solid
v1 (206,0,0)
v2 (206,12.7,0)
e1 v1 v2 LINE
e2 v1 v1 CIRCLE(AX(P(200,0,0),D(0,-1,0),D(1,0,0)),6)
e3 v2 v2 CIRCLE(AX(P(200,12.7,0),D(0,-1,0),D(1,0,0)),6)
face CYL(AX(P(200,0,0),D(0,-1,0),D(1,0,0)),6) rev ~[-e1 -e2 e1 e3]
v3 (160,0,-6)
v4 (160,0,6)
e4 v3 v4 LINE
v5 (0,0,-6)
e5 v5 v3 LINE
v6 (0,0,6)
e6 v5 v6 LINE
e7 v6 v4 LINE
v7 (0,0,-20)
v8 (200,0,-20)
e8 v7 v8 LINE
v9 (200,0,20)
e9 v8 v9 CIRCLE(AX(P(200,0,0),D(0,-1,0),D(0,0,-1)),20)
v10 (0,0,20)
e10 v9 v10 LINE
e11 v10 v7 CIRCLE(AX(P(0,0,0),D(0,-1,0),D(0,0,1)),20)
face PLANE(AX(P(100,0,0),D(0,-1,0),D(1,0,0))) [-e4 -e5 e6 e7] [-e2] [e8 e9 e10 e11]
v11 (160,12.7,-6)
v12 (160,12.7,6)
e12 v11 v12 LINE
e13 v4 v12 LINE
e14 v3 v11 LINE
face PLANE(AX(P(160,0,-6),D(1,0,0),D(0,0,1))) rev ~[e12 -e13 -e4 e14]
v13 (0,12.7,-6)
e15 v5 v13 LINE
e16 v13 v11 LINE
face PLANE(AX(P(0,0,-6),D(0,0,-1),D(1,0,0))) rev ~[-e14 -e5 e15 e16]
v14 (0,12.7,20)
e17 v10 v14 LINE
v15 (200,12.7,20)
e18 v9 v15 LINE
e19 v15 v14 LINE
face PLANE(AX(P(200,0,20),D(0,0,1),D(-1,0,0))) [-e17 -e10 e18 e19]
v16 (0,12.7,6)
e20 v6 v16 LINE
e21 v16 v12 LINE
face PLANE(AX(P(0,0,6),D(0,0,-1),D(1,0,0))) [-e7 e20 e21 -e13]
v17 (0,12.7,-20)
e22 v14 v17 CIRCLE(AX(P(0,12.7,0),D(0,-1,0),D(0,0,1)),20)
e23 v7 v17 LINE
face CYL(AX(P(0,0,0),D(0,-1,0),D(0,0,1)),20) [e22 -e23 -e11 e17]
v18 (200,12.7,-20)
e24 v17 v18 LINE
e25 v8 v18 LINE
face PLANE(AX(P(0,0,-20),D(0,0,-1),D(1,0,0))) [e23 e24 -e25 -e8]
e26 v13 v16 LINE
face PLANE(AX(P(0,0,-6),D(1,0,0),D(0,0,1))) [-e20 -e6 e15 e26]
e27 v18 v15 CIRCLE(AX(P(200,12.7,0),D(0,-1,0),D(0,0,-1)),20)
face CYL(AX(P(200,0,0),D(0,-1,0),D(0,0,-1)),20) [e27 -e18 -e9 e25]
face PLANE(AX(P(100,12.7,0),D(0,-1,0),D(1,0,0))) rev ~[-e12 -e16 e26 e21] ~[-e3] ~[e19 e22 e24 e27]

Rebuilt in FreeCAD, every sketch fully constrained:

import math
import FreeCAD as App
import Part
import Sketcher

V = App.Vector
Q = App.Units.Quantity

doc = App.newDocument("Part")
body = doc.addObject("PartDesign::Body", "Body")

# Sketch on XZ plane
sketch1 = body.newObject("Sketcher::SketchObject", "Sketch")
sketch1.AttachmentSupport = (doc.getObject("XZ_Plane"), [""])
sketch1.MapMode = "FlatFace"
sketch1.addGeometry(Part.LineSegment(V(200, 20, 0), V(0, 20, 0)), False)
sketch1.addGeometry(Part.ArcOfCircle(Part.Circle(V(0, 0, 0), V(0, 0, 1), 20), math.radians(90), math.radians(270)), False)
sketch1.addGeometry(Part.LineSegment(V(0, -20, 0), V(200, -20, 0)), False)
sketch1.addGeometry(Part.ArcOfCircle(Part.Circle(V(200, 0, 0), V(0, 0, 1), 20), math.radians(-90), math.radians(90)), False)
sketch1.addGeometry(Part.LineSegment(V(160, -6, 0), V(0, -6, 0)), False)
sketch1.addGeometry(Part.LineSegment(V(0, -6, 0), V(0, 6, 0)), False)
sketch1.addGeometry(Part.LineSegment(V(0, 6, 0), V(160, 6, 0)), False)
sketch1.addGeometry(Part.LineSegment(V(160, 6, 0), V(160, -6, 0)), False)
sketch1.addGeometry(Part.Circle(V(200, 0, 0), V(0, 0, 1), 6), False)
sketch1.addConstraint(Sketcher.Constraint("Tangent", 0, 2, 1, 1))
sketch1.addConstraint(Sketcher.Constraint("Tangent", 1, 2, 2, 1))
sketch1.addConstraint(Sketcher.Constraint("Tangent", 2, 2, 3, 1))
sketch1.addConstraint(Sketcher.Constraint("Tangent", 3, 2, 0, 1))
sketch1.addConstraint(Sketcher.Constraint("Coincident", 4, 2, 5, 1))
sketch1.addConstraint(Sketcher.Constraint("Coincident", 5, 2, 6, 1))
sketch1.addConstraint(Sketcher.Constraint("Coincident", 6, 2, 7, 1))
sketch1.addConstraint(Sketcher.Constraint("Coincident", 7, 2, 4, 1))
sketch1.addConstraint(Sketcher.Constraint("Horizontal", 0))
sketch1.addConstraint(Sketcher.Constraint("Horizontal", 2))
sketch1.addConstraint(Sketcher.Constraint("Horizontal", 4))
sketch1.addConstraint(Sketcher.Constraint("Vertical", 5))
sketch1.addConstraint(Sketcher.Constraint("Horizontal", 6))
sketch1.addConstraint(Sketcher.Constraint("Vertical", 7))
sketch1.addConstraint(Sketcher.Constraint("Coincident", 1, 3, -1, 1))
sketch1.addConstraint(Sketcher.Constraint("Coincident", 8, 3, 3, 3))
sketch1.addConstraint(Sketcher.Constraint("Symmetric", 4, 2, 5, 2, -1, 1))
sketch1.addConstraint(Sketcher.Constraint("Diameter", 8, Q("12 mm")))
sketch1.addConstraint(Sketcher.Constraint("Radius", 1, Q("20 mm")))
sketch1.addConstraint(Sketcher.Constraint("DistanceX", 0, 2, 0, 1, Q("200 mm")))
sketch1.addConstraint(Sketcher.Constraint("DistanceX", 4, 2, 4, 1, Q("160 mm")))
sketch1.addConstraint(Sketcher.Constraint("DistanceY", 5, 1, 5, 2, Q("12 mm")))
pad1 = body.newObject("PartDesign::Pad", "Pad")
pad1.Profile = sketch1
pad1.Length = 12.7
pad1.Reversed = True

doc.recompute()
